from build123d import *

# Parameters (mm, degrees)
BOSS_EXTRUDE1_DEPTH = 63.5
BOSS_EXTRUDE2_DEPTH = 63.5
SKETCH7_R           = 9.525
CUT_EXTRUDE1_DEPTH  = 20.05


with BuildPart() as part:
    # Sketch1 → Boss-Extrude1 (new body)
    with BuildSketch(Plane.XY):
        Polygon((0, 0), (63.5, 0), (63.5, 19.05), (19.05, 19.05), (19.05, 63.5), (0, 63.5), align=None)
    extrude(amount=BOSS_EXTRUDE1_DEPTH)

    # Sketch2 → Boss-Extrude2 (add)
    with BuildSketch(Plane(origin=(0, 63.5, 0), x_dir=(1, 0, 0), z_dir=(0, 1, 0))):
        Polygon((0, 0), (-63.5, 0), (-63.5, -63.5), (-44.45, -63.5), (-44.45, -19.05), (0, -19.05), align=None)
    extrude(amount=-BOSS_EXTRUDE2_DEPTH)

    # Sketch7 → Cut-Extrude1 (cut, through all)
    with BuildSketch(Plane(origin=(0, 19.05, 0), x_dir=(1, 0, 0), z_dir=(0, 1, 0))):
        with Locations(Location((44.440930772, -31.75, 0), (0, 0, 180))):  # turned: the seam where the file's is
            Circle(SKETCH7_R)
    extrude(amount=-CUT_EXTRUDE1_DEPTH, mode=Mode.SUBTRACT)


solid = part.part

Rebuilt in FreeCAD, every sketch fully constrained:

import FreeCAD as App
import Part
import Sketcher
Q = App.Units.Quantity

doc = App.newDocument("Part")
body = doc.addObject("PartDesign::Body", "Body")

# Sketch on XY plane
sketch1 = body.newObject("Sketcher::SketchObject", "Sketch")
sketch1.AttachmentSupport = (doc.getObject("XY_Plane"), [""])
sketch1.MapMode = "FlatFace"
sketch1.addGeometry([
    Part.LineSegment(App.Vector(0, 0, 0), App.Vector(63.5, 0, 0)),  # 0
    Part.LineSegment(App.Vector(63.5, 0, 0), App.Vector(63.5, 19.05, 0)),  # 1
    Part.LineSegment(App.Vector(63.5, 19.05, 0), App.Vector(19.05, 19.05, 0)),  # 2
    Part.LineSegment(App.Vector(19.05, 19.05, 0), App.Vector(19.05, 63.5, 0)),  # 3
    Part.LineSegment(App.Vector(19.05, 63.5, 0), App.Vector(0, 63.5, 0)),  # 4
    Part.LineSegment(App.Vector(0, 63.5, 0), App.Vector(0, 0, 0)),  # 5
], False)
sketch1.addConstraint([
    Sketcher.Constraint("Coincident", 0, 2, 1, 1),
    Sketcher.Constraint("Coincident", 1, 2, 2, 1),
    Sketcher.Constraint("Coincident", 2, 2, 3, 1),
    Sketcher.Constraint("Coincident", 3, 2, 4, 1),
    Sketcher.Constraint("Coincident", 4, 2, 5, 1),
    Sketcher.Constraint("Coincident", 5, 2, 0, 1),
    Sketcher.Constraint("Horizontal", 0),
    Sketcher.Constraint("Vertical", 1),
    Sketcher.Constraint("Horizontal", 2),
    Sketcher.Constraint("Vertical", 3),
    Sketcher.Constraint("Horizontal", 4),
    Sketcher.Constraint("Vertical", 5),
    Sketcher.Constraint("Coincident", 5, 2, -1, 1),
    Sketcher.Constraint("Equal", 4, 1),
    Sketcher.Constraint("Equal", 2, 3),
    Sketcher.Constraint("DistanceX", 0, 1, 0, 2, Q("2.5 in")),
    Sketcher.Constraint("DistanceX", 2, 2, 2, 1, Q("1.75 in")),
])
pad1 = body.newObject("PartDesign::Pad", "Pad")
pad1.Profile = sketch1
pad1.Length = Q("2.5 in")

# Sketch on XZ plane
sketch2 = body.newObject("Sketcher::SketchObject", "Sketch001")
sketch2.AttachmentSupport = (doc.getObject("XZ_Plane"), [""])
sketch2.MapMode = "FlatFace"
sketch2.AttachmentOffset = App.Placement(App.Vector(0, 0, -2.5 * 25.4), App.Rotation())
sketch2.addGeometry([
    Part.LineSegment(App.Vector(0, 0, 0), App.Vector(-63.5, 0, 0)),  # 0
    Part.LineSegment(App.Vector(-63.5, 0, 0), App.Vector(-63.5, 63.5, 0)),  # 1
    Part.LineSegment(App.Vector(-63.5, 63.5, 0), App.Vector(-44.45, 63.5, 0)),  # 2
    Part.LineSegment(App.Vector(-44.45, 63.5, 0), App.Vector(-44.45, 19.05, 0)),  # 3
    Part.LineSegment(App.Vector(-44.45, 19.05, 0), App.Vector(0, 19.05, 0)),  # 4
    Part.LineSegment(App.Vector(0, 19.05, 0), App.Vector(0, 0, 0)),  # 5
], False)
sketch2.addConstraint([
    Sketcher.Constraint("Coincident", 0, 2, 1, 1),
    Sketcher.Constraint("Coincident", 1, 2, 2, 1),
    Sketcher.Constraint("Coincident", 2, 2, 3, 1),
    Sketcher.Constraint("Coincident", 3, 2, 4, 1),
    Sketcher.Constraint("Coincident", 4, 2, 5, 1),
    Sketcher.Constraint("Coincident", 5, 2, 0, 1),
    Sketcher.Constraint("Horizontal", 0),
    Sketcher.Constraint("Vertical", 1),
    Sketcher.Constraint("Horizontal", 2),
    Sketcher.Constraint("Vertical", 3),
    Sketcher.Constraint("Horizontal", 4),
    Sketcher.Constraint("Vertical", 5),
    Sketcher.Constraint("Coincident", 5, 2, -1, 1),
    Sketcher.Constraint("Equal", 0, 1),
    Sketcher.Constraint("Equal", 4, 3),
    Sketcher.Constraint("DistanceX", 0, 2, 0, 1, Q("2.5 in")),
    Sketcher.Constraint("DistanceX", 2, 1, 2, 2, Q("0.75 in")),
])
pad2 = body.newObject("PartDesign::Pad", "Pad001")
pad2.Profile = sketch2
pad2.Length = Q("2.5 in")

# Sketch on XZ plane
sketch3 = body.newObject("Sketcher::SketchObject", "Sketch002")
sketch3.AttachmentSupport = (doc.getObject("XZ_Plane"), [""])
sketch3.MapMode = "FlatFace"
sketch3.AttachmentOffset = App.Placement(App.Vector(0, 0, -0.75 * 25.4), App.Rotation())
sketch3.addGeometry(Part.Circle(App.Vector(44.440931, 31.75, 0), App.Vector(0, 0, 1), 9.525), False)
sketch3.addConstraint([
    Sketcher.Constraint("Diameter", 0, Q("0.75 in")),
    Sketcher.Constraint("DistanceY", -1, 1, 0, 3, Q("1.25 in")),
    Sketcher.Constraint("DistanceX", -1, 1, 0, 3, 44.440931),
])
pocket1 = body.newObject("PartDesign::Pocket", "Pocket")
pocket1.Profile = sketch3
pocket1.Type = "ThroughAll"
pocket1.Reversed = True

doc.recompute()
